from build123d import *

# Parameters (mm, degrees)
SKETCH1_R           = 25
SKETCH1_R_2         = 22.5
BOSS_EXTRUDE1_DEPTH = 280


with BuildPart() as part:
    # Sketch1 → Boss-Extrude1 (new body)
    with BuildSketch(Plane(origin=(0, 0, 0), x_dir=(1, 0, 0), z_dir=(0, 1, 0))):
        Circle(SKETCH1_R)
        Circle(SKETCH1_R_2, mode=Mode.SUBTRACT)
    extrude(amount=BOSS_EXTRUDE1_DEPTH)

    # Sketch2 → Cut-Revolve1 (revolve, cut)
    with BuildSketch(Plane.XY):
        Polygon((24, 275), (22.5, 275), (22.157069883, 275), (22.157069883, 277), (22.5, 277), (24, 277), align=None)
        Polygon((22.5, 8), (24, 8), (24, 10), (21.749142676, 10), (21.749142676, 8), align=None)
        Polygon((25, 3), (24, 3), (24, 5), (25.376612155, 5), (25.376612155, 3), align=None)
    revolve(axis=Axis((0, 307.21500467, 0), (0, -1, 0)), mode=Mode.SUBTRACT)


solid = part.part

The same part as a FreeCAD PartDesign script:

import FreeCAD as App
import Part
import Sketcher
from FreeCAD import Vector
Q = App.Units.Quantity


def add_polygon(sketch, points):
    """Adds a closed chain of lines whose ends are joined by coincident constraints."""
    first, n = sketch.GeometryCount, len(points)
    for a, b in zip(points, points[1:] + points[:1]):
        sketch.addGeometry(Part.LineSegment(App.Vector(*a, 0), App.Vector(*b, 0)), False)
    for i in range(n):
        sketch.addConstraint(Sketcher.Constraint("Coincident", first + i, 2, first + (i + 1) % n, 1))

doc = App.newDocument("Part")
body = doc.addObject("PartDesign::Body", "Body")

# Sketch on XZ plane
sketch1 = doc.addObject("Sketcher::SketchObject", "Sketch")
body.addObject(sketch1)
sketch1.AttachmentSupport = (doc.XZ_Plane, [""])
sketch1.MapMode = "FlatFace"
sketch1.addGeometry([
    Part.Circle(Vector(0, 0, 0), Vector(0, 0, 1), 25),
    Part.Circle(Vector(0, 0, 0), Vector(0, 0, 1), 22),
], False)
sketch1.addConstraint([
    Sketcher.Constraint("Coincident", 0, 3, -1, 1),
    Sketcher.Constraint("Coincident", 1, 3, -1, 1),
    Sketcher.Constraint("Diameter", 0, Q("50 mm")),
    Sketcher.Constraint("Diameter", 1, Q("45 mm")),
])
pad1 = doc.addObject("PartDesign::Pad", "Pad")
body.addObject(pad1)
pad1.Profile = sketch1
pad1.Length = 280
pad1.Reversed = True

# Sketch on XY plane
sketch2 = doc.addObject("Sketcher::SketchObject", "Sketch001")
body.addObject(sketch2)
sketch2.AttachmentSupport = (doc.XY_Plane, [""])
sketch2.MapMode = "FlatFace"
add_polygon(sketch2, [(22.2, 275), (24, 275), (24, 277), (22.2, 277)])  # lines 0-3
add_polygon(sketch2, [(24, 8), (24, 10), (21.7, 10), (21.7, 8)])  # lines 4-7
add_polygon(sketch2, [(24, 3), (25.4, 3), (25.4, 5), (24, 5)])  # lines 8-11
sketch2.addConstraint([
    Sketcher.Constraint("Horizontal", 0),
    Sketcher.Constraint("Vertical", 1),
    Sketcher.Constraint("Horizontal", 2),
    Sketcher.Constraint("Vertical", 3),
    Sketcher.Constraint("Vertical", 4),
    Sketcher.Constraint("Horizontal", 5),
    Sketcher.Constraint("Vertical", 6),
    Sketcher.Constraint("Horizontal", 7),
    Sketcher.Constraint("Horizontal", 8),
    Sketcher.Constraint("Vertical", 9),
    Sketcher.Constraint("Horizontal", 10),
    Sketcher.Constraint("Vertical", 11),
    Sketcher.Constraint("Vertical", 1, 2, 4, 2),
    Sketcher.Constraint("Vertical", 7, 2, 10, 2),
    Sketcher.Constraint("Equal", 3, 4),
    Sketcher.Constraint("Equal", 6, 9),
    Sketcher.Constraint("DistanceY", 1, 1, 1, 2, Q("2 mm")),
    Sketcher.Constraint("DistanceX", -1, 1, 0, 2, Q("24 mm")),
    Sketcher.Constraint("DistanceY", -1, 1, 0, 2, Q("275 mm")),
    Sketcher.Constraint("DistanceY", -1, 1, 4, 2, Q("10 mm")),
    Sketcher.Constraint("DistanceY", -1, 1, 8, 2, Q("3 mm")),
    Sketcher.Constraint("DistanceX", 0, 1, 0, 2, Q("1.84293 mm")),
    Sketcher.Constraint("DistanceX", 5, 2, 5, 1, Q("2.250857 mm")),
    Sketcher.Constraint("DistanceX", 8, 1, 8, 2, Q("1.376612 mm")),
])
groove = doc.addObject("PartDesign::Groove", "Groove")
body.addObject(groove)
groove.Profile = sketch2
groove.ReferenceAxis = (sketch2, ["V_Axis"])
groove.Angle = 360

doc.recompute()
